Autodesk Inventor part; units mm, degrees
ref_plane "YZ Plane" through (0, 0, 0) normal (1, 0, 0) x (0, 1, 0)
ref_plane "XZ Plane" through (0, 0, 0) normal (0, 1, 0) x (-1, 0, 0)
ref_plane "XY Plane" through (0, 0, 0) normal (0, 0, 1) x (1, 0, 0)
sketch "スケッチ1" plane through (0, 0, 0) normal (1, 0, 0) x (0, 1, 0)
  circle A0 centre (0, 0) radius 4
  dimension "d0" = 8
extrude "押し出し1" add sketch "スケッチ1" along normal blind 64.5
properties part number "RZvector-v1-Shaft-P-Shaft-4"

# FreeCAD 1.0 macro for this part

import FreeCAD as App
import Part
import Sketcher

doc = App.newDocument("Part")
body = doc.addObject("PartDesign::Body", "Body")

sketch1 = body.newObject("Sketcher::SketchObject", "Sketch")
sketch1.AttachmentSupport = (doc.getObject("YZ_Plane"), [""])
sketch1.MapMode = "FlatFace"
sketch1.addGeometry(Part.Circle(App.Vector(0, 0, 0), App.Vector(0, 0, 1), 4), False)
sketch1.addConstraint(Sketcher.Constraint("Coincident", 0, 3, -1, 1))
sketch1.addConstraint(Sketcher.Constraint("Diameter", 0, 8.0))
pad1 = body.newObject("PartDesign::Pad", "Pad")
pad1.Profile = sketch1
pad1.Length = 64.5

doc.recompute()
